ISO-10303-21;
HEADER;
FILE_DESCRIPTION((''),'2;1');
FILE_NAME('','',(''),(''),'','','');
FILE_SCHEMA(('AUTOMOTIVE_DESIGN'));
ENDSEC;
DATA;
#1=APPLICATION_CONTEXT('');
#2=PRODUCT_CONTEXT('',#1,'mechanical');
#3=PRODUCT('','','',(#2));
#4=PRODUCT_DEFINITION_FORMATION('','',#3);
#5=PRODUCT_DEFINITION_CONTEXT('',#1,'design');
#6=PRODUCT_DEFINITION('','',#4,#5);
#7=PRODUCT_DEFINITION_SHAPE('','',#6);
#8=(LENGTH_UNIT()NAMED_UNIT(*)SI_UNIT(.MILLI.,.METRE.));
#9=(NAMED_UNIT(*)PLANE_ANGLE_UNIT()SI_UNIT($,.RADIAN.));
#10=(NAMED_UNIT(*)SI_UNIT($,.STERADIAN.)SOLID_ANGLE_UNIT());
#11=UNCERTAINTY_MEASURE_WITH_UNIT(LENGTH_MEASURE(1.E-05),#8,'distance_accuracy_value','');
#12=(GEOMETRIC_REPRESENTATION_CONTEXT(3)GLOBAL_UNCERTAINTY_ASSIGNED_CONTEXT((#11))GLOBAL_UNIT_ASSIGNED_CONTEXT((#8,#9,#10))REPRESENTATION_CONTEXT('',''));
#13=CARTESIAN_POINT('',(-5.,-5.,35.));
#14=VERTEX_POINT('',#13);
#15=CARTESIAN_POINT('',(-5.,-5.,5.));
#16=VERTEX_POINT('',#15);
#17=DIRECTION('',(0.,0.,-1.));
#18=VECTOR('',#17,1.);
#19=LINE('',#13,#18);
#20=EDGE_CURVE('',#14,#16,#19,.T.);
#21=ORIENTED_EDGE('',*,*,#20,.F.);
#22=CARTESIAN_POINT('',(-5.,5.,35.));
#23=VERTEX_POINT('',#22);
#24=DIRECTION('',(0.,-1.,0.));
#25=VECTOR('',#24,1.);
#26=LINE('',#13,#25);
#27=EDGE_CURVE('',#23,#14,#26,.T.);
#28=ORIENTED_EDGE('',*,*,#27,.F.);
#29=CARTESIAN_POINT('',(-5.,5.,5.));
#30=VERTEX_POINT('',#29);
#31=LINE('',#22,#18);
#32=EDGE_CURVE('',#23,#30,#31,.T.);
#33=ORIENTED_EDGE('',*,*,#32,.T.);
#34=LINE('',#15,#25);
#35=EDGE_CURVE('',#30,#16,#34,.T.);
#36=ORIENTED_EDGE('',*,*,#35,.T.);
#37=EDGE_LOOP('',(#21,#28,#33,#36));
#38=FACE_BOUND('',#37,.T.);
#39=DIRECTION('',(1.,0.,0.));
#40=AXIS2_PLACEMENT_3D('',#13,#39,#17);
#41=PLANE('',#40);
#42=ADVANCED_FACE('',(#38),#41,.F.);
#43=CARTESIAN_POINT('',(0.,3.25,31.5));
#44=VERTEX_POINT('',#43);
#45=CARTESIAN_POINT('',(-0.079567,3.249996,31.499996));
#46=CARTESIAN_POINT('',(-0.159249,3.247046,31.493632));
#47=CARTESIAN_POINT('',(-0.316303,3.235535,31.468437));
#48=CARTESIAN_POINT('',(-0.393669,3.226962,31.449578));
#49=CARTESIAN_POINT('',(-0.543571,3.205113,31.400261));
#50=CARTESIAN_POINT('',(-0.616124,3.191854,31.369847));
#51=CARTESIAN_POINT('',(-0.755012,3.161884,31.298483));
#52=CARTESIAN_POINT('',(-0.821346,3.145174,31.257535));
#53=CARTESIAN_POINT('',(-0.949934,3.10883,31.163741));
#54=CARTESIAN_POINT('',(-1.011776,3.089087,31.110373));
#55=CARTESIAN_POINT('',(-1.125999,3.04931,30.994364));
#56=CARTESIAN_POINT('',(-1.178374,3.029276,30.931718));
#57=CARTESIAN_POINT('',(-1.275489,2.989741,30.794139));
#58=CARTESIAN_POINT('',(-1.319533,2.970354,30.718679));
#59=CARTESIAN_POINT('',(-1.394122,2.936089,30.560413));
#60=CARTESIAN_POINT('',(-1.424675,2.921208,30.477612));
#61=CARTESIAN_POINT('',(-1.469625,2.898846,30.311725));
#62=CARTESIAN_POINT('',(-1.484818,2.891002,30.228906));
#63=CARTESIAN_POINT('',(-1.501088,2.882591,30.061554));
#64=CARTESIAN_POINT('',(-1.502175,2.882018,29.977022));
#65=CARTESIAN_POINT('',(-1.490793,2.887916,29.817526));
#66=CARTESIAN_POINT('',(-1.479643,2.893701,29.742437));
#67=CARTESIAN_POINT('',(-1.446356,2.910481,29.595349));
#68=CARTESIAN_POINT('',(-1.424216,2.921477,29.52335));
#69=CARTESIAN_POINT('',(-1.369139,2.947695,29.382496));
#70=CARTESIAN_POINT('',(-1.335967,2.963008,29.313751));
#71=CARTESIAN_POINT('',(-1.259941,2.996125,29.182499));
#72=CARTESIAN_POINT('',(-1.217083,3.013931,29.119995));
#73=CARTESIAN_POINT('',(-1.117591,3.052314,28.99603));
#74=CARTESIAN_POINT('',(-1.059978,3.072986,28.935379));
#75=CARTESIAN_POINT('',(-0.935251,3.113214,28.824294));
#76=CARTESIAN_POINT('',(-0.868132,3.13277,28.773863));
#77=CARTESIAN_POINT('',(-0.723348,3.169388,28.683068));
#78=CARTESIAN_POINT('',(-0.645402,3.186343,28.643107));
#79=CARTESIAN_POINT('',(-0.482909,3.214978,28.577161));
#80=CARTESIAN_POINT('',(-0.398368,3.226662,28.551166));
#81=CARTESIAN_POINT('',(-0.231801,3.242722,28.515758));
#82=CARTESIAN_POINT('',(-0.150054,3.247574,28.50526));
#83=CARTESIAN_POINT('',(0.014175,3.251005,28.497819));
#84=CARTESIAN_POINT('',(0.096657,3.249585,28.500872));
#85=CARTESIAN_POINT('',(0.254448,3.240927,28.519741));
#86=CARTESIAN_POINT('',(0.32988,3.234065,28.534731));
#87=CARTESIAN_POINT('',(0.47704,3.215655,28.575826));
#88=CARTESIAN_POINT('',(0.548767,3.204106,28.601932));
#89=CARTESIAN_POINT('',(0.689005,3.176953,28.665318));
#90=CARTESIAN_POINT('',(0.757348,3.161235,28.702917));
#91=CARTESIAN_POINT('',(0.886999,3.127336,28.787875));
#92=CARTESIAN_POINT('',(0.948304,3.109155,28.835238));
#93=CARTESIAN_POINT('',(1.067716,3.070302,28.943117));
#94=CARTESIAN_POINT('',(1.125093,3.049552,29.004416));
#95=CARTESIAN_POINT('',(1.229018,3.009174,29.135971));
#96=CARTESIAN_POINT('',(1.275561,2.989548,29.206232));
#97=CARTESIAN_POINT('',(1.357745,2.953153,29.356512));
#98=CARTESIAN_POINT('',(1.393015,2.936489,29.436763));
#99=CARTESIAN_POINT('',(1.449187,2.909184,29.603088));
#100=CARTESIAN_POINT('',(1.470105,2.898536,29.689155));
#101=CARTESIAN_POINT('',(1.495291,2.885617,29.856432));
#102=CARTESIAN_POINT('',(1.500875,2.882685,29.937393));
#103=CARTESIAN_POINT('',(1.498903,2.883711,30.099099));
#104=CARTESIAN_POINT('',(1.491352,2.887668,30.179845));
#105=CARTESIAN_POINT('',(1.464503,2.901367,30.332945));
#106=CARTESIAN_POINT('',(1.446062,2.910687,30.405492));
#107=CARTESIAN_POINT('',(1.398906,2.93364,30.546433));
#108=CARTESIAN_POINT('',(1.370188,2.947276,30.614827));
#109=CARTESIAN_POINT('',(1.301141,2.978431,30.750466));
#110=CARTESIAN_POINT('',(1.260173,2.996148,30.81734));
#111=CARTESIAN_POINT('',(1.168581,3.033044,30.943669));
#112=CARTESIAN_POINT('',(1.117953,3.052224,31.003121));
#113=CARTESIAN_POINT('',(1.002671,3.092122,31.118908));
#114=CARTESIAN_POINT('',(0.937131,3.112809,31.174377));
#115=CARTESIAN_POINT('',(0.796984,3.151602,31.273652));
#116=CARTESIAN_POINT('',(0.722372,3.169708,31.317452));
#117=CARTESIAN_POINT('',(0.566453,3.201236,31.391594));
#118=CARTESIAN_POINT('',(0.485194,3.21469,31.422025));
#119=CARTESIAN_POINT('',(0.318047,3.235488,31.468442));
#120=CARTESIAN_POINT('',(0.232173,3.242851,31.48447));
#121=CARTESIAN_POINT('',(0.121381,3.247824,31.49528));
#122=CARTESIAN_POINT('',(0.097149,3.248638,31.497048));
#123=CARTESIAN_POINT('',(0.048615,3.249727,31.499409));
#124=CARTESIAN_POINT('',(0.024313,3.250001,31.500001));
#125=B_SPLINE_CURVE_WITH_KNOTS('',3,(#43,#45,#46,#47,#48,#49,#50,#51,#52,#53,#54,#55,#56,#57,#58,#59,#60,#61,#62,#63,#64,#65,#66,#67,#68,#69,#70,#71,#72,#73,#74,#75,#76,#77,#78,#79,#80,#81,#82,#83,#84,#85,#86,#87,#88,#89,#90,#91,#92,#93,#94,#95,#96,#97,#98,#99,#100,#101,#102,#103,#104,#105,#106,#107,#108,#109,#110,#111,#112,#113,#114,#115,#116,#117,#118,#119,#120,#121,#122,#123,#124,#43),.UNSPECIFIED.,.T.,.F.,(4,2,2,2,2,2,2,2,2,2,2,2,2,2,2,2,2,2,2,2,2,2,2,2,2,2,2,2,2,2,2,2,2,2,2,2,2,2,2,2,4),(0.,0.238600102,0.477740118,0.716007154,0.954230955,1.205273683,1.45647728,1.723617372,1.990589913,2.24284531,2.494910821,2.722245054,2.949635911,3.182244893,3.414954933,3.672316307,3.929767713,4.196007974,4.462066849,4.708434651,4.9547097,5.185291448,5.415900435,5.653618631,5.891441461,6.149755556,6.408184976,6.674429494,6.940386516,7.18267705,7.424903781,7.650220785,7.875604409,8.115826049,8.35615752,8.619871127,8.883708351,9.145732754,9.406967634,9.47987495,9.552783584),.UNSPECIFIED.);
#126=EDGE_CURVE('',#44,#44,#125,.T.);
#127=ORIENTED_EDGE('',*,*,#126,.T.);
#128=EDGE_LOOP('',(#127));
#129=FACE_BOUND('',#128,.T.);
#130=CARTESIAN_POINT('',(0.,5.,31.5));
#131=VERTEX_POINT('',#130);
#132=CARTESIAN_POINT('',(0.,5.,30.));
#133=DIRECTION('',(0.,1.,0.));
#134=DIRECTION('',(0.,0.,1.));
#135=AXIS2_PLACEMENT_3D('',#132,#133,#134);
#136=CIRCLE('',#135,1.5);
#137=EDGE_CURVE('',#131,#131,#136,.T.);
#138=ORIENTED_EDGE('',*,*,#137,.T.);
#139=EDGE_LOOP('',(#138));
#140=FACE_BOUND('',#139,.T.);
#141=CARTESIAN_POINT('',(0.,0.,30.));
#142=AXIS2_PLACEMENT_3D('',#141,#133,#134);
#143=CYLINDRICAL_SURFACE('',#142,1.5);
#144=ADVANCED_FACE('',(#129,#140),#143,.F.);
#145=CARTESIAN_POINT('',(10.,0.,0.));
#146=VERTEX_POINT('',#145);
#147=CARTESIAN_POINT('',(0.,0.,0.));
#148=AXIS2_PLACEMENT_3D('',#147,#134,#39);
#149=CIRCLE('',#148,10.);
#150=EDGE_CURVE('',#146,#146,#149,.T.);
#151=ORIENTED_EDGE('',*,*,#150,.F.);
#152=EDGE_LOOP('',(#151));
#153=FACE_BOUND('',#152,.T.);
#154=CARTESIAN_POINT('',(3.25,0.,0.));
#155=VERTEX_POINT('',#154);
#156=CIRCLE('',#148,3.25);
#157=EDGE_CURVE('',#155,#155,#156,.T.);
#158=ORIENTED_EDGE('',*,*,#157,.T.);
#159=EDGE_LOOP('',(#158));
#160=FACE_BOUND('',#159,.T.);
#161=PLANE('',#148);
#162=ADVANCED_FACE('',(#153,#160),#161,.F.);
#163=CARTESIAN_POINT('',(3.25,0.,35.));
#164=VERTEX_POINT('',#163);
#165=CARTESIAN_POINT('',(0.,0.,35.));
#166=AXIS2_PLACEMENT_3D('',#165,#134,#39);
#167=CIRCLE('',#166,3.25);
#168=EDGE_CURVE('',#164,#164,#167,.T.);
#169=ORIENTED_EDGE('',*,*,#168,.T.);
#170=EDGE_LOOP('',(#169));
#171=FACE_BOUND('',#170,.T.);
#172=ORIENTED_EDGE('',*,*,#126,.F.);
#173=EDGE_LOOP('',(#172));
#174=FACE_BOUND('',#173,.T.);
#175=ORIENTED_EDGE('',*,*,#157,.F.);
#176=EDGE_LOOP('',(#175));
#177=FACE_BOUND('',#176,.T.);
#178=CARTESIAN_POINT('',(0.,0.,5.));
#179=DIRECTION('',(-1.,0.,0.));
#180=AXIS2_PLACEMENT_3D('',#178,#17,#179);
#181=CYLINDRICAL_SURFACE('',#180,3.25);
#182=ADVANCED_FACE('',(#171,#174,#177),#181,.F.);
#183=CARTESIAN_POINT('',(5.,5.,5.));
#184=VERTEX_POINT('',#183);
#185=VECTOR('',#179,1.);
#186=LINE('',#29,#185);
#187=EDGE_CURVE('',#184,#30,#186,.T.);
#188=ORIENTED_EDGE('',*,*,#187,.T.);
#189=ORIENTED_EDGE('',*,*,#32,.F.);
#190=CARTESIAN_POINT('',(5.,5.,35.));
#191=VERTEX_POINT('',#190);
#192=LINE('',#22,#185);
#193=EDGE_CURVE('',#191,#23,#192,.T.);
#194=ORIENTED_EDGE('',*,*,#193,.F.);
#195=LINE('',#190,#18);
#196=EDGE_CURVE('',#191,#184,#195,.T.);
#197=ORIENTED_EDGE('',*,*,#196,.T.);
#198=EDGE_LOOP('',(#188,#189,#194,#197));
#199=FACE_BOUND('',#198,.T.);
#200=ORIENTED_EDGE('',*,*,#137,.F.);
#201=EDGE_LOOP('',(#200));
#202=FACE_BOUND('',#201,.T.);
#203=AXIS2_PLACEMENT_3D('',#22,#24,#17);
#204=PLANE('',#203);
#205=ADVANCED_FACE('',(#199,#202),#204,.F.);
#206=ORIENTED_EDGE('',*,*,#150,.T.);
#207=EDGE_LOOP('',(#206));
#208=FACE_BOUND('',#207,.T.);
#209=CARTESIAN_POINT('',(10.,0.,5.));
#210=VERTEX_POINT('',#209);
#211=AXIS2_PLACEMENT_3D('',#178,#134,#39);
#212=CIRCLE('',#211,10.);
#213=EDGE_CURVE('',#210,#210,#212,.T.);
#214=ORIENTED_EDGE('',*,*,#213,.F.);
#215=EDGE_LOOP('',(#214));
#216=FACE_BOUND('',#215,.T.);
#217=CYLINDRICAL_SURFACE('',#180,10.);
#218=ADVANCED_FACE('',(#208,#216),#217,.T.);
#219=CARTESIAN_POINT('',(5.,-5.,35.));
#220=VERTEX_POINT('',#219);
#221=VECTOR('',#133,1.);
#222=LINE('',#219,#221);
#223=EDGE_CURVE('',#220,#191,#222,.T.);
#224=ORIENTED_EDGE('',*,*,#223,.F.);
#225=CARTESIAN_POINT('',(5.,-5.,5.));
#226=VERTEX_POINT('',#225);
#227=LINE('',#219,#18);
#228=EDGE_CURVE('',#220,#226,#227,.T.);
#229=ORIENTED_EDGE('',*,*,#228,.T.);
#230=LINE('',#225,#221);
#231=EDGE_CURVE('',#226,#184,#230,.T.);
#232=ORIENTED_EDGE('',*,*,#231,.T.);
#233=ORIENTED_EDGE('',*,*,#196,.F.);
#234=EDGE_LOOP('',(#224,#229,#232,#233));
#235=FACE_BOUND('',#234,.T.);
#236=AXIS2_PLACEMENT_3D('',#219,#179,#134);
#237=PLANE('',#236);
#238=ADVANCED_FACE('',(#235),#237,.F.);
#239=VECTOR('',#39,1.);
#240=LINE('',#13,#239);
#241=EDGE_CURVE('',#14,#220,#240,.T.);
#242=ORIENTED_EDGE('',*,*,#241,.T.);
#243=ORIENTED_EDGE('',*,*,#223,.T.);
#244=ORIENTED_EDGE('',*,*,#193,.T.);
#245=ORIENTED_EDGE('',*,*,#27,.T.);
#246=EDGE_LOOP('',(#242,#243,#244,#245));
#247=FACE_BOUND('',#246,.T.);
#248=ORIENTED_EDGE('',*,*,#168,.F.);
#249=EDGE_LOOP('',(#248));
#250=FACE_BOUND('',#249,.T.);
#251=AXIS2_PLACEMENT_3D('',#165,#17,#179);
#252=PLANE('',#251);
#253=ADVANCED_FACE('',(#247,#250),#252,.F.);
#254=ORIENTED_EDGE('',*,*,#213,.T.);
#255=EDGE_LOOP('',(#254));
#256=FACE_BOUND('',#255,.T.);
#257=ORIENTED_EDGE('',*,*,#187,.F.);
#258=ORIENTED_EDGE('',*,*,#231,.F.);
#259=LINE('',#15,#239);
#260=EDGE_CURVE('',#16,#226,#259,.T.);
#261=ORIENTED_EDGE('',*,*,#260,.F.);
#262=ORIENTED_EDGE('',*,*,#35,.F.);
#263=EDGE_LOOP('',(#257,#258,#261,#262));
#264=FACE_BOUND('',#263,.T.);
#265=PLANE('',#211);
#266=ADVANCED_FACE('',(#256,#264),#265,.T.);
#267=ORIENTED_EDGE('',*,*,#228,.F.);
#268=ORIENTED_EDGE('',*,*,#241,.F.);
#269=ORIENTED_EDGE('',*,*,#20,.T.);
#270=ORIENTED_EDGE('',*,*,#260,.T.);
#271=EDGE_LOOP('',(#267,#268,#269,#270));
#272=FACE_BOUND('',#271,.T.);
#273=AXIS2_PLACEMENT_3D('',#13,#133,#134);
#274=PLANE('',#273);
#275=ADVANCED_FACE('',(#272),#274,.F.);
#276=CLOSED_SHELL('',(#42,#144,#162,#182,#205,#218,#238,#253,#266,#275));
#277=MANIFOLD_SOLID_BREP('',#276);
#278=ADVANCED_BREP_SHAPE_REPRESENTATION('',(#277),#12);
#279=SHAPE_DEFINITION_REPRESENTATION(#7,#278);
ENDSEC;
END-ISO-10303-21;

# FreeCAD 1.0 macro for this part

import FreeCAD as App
import Part
import Sketcher
from FreeCAD import Vector
Q = App.Units.Quantity


def add_polygon(sketch, points):
    """Adds a closed chain of lines whose ends are joined by coincident constraints."""
    first, n = sketch.GeometryCount, len(points)
    for a, b in zip(points, points[1:] + points[:1]):
        sketch.addGeometry(Part.LineSegment(App.Vector(*a, 0), App.Vector(*b, 0)), False)
    for i in range(n):
        sketch.addConstraint(Sketcher.Constraint("Coincident", first + i, 2, first + (i + 1) % n, 1))

doc = App.newDocument("Part")
params = doc.addObject("Spreadsheet::Sheet", "Params")
for row, (alias, value) in enumerate([
    ("sketch1_diameter", "20 mm"),
    ("sketch1_diameter2", "6.5 mm"),
    ("pad1_length", "5 mm"),
    ("sketch2_width", "10 mm"),
    ("pad2_length", "30 mm"),
    ("sketch3_diameter", "6.5 mm"),
    ("pocket1_length", "30 mm"),
    ("sketch4_diameter", "3 mm"),
    ("pocket2_length", "5 mm"),
], start=1):
    params.set(f"A{row}", alias)
    params.set(f"B{row}", "=" + value)
    params.setAlias(f"B{row}", alias)

body = doc.addObject("PartDesign::Body", "Body")

sketch1 = body.newObject("Sketcher::SketchObject", "Sketch")
sketch1.AttachmentSupport = (doc.getObject("XY_Plane"), [""])
sketch1.MapMode = "FlatFace"
sketch1.addGeometry(Part.Circle(Vector(0, 0, 0), Vector(0, 0, 1), 10), False)
sketch1.addGeometry(Part.Circle(Vector(0, 0, 0), Vector(0, 0, 1), 3.2), False)
sketch1.addConstraint(Sketcher.Constraint("Coincident", 0, 3, -1, 1))
sketch1.addConstraint(Sketcher.Constraint("Coincident", 1, 3, -1, 1))
sketch1.addConstraint(Sketcher.Constraint("Diameter", 0, Q("20 mm")))
sketch1.addConstraint(Sketcher.Constraint("Diameter", 1, Q("6.5 mm")))
sketch1.setExpression("Constraints[2]", "Params.sketch1_diameter")
sketch1.setExpression("Constraints[3]", "Params.sketch1_diameter2")
pad1 = body.newObject("PartDesign::Pad", "Pad")
pad1.Profile = sketch1
pad1.setExpression("Length", "Params.pad1_length")

sketch2 = body.newObject("Sketcher::SketchObject", "Sketch001")
sketch2.AttachmentSupport = (doc.getObject("XY_Plane"), [""])
sketch2.MapMode = "FlatFace"
sketch2.AttachmentOffset = App.Placement(Vector(0, 0, 5), App.Rotation())
add_polygon(sketch2, [(-5, 5), (-5, -5), (5, -5), (5, 5)])
sketch2.addConstraint(Sketcher.Constraint("Vertical", 0))
sketch2.addConstraint(Sketcher.Constraint("Horizontal", 1))
sketch2.addConstraint(Sketcher.Constraint("Vertical", 2))
sketch2.addConstraint(Sketcher.Constraint("Horizontal", 3))
sketch2.addConstraint(Sketcher.Constraint("Symmetric", 0, 2, 2, 2, -1, 1))
sketch2.addConstraint(Sketcher.Constraint("Equal", 3, 0))
sketch2.addConstraint(Sketcher.Constraint("DistanceX", 1, 1, 1, 2, Q("10 mm")))
sketch2.setExpression("Constraints[10]", "Params.sketch2_width")
pad2 = body.newObject("PartDesign::Pad", "Pad001")
pad2.Profile = sketch2
pad2.setExpression("Length", "Params.pad2_length")

sketch3 = body.newObject("Sketcher::SketchObject", "Sketch002")
sketch3.AttachmentSupport = (doc.getObject("XY_Plane"), [""])
sketch3.MapMode = "FlatFace"
sketch3.AttachmentOffset = App.Placement(Vector(0, 0, 5), App.Rotation())
sketch3.addGeometry(Part.Circle(Vector(0, 0, 0), Vector(0, 0, 1), 3.2), False)
sketch3.addConstraint(Sketcher.Constraint("Coincident", 0, 3, -1, 1))
sketch3.addConstraint(Sketcher.Constraint("Diameter", 0, Q("6.5 mm")))
sketch3.setExpression("Constraints[1]", "Params.sketch3_diameter")
pocket1 = body.newObject("PartDesign::Pocket", "Pocket")
pocket1.Profile = sketch3
pocket1.setExpression("Length", "Params.pocket1_length")
pocket1.Reversed = True

sketch4 = body.newObject("Sketcher::SketchObject", "Sketch003")
sketch4.AttachmentSupport = (doc.getObject("XZ_Plane"), [""])
sketch4.MapMode = "FlatFace"
sketch4.AttachmentOffset = App.Placement(Vector(0, 0, -5), App.Rotation())
sketch4.addGeometry(Part.Circle(Vector(0, 30, 0), Vector(0, 0, 1), 1.5), False)
sketch4.addConstraint(Sketcher.Constraint("PointOnObject", 0, 3, -2))
sketch4.addConstraint(Sketcher.Constraint("Diameter", 0, Q("3 mm")))
sketch4.addConstraint(Sketcher.Constraint("DistanceY", -1, 1, 0, 3, Q("30 mm")))
sketch4.setExpression("Constraints[1]", "Params.sketch4_diameter")
pocket2 = body.newObject("PartDesign::Pocket", "Pocket001")
pocket2.Profile = sketch4
pocket2.setExpression("Length", "Params.pocket2_length")
pocket2.Reversed = True

doc.recompute()
